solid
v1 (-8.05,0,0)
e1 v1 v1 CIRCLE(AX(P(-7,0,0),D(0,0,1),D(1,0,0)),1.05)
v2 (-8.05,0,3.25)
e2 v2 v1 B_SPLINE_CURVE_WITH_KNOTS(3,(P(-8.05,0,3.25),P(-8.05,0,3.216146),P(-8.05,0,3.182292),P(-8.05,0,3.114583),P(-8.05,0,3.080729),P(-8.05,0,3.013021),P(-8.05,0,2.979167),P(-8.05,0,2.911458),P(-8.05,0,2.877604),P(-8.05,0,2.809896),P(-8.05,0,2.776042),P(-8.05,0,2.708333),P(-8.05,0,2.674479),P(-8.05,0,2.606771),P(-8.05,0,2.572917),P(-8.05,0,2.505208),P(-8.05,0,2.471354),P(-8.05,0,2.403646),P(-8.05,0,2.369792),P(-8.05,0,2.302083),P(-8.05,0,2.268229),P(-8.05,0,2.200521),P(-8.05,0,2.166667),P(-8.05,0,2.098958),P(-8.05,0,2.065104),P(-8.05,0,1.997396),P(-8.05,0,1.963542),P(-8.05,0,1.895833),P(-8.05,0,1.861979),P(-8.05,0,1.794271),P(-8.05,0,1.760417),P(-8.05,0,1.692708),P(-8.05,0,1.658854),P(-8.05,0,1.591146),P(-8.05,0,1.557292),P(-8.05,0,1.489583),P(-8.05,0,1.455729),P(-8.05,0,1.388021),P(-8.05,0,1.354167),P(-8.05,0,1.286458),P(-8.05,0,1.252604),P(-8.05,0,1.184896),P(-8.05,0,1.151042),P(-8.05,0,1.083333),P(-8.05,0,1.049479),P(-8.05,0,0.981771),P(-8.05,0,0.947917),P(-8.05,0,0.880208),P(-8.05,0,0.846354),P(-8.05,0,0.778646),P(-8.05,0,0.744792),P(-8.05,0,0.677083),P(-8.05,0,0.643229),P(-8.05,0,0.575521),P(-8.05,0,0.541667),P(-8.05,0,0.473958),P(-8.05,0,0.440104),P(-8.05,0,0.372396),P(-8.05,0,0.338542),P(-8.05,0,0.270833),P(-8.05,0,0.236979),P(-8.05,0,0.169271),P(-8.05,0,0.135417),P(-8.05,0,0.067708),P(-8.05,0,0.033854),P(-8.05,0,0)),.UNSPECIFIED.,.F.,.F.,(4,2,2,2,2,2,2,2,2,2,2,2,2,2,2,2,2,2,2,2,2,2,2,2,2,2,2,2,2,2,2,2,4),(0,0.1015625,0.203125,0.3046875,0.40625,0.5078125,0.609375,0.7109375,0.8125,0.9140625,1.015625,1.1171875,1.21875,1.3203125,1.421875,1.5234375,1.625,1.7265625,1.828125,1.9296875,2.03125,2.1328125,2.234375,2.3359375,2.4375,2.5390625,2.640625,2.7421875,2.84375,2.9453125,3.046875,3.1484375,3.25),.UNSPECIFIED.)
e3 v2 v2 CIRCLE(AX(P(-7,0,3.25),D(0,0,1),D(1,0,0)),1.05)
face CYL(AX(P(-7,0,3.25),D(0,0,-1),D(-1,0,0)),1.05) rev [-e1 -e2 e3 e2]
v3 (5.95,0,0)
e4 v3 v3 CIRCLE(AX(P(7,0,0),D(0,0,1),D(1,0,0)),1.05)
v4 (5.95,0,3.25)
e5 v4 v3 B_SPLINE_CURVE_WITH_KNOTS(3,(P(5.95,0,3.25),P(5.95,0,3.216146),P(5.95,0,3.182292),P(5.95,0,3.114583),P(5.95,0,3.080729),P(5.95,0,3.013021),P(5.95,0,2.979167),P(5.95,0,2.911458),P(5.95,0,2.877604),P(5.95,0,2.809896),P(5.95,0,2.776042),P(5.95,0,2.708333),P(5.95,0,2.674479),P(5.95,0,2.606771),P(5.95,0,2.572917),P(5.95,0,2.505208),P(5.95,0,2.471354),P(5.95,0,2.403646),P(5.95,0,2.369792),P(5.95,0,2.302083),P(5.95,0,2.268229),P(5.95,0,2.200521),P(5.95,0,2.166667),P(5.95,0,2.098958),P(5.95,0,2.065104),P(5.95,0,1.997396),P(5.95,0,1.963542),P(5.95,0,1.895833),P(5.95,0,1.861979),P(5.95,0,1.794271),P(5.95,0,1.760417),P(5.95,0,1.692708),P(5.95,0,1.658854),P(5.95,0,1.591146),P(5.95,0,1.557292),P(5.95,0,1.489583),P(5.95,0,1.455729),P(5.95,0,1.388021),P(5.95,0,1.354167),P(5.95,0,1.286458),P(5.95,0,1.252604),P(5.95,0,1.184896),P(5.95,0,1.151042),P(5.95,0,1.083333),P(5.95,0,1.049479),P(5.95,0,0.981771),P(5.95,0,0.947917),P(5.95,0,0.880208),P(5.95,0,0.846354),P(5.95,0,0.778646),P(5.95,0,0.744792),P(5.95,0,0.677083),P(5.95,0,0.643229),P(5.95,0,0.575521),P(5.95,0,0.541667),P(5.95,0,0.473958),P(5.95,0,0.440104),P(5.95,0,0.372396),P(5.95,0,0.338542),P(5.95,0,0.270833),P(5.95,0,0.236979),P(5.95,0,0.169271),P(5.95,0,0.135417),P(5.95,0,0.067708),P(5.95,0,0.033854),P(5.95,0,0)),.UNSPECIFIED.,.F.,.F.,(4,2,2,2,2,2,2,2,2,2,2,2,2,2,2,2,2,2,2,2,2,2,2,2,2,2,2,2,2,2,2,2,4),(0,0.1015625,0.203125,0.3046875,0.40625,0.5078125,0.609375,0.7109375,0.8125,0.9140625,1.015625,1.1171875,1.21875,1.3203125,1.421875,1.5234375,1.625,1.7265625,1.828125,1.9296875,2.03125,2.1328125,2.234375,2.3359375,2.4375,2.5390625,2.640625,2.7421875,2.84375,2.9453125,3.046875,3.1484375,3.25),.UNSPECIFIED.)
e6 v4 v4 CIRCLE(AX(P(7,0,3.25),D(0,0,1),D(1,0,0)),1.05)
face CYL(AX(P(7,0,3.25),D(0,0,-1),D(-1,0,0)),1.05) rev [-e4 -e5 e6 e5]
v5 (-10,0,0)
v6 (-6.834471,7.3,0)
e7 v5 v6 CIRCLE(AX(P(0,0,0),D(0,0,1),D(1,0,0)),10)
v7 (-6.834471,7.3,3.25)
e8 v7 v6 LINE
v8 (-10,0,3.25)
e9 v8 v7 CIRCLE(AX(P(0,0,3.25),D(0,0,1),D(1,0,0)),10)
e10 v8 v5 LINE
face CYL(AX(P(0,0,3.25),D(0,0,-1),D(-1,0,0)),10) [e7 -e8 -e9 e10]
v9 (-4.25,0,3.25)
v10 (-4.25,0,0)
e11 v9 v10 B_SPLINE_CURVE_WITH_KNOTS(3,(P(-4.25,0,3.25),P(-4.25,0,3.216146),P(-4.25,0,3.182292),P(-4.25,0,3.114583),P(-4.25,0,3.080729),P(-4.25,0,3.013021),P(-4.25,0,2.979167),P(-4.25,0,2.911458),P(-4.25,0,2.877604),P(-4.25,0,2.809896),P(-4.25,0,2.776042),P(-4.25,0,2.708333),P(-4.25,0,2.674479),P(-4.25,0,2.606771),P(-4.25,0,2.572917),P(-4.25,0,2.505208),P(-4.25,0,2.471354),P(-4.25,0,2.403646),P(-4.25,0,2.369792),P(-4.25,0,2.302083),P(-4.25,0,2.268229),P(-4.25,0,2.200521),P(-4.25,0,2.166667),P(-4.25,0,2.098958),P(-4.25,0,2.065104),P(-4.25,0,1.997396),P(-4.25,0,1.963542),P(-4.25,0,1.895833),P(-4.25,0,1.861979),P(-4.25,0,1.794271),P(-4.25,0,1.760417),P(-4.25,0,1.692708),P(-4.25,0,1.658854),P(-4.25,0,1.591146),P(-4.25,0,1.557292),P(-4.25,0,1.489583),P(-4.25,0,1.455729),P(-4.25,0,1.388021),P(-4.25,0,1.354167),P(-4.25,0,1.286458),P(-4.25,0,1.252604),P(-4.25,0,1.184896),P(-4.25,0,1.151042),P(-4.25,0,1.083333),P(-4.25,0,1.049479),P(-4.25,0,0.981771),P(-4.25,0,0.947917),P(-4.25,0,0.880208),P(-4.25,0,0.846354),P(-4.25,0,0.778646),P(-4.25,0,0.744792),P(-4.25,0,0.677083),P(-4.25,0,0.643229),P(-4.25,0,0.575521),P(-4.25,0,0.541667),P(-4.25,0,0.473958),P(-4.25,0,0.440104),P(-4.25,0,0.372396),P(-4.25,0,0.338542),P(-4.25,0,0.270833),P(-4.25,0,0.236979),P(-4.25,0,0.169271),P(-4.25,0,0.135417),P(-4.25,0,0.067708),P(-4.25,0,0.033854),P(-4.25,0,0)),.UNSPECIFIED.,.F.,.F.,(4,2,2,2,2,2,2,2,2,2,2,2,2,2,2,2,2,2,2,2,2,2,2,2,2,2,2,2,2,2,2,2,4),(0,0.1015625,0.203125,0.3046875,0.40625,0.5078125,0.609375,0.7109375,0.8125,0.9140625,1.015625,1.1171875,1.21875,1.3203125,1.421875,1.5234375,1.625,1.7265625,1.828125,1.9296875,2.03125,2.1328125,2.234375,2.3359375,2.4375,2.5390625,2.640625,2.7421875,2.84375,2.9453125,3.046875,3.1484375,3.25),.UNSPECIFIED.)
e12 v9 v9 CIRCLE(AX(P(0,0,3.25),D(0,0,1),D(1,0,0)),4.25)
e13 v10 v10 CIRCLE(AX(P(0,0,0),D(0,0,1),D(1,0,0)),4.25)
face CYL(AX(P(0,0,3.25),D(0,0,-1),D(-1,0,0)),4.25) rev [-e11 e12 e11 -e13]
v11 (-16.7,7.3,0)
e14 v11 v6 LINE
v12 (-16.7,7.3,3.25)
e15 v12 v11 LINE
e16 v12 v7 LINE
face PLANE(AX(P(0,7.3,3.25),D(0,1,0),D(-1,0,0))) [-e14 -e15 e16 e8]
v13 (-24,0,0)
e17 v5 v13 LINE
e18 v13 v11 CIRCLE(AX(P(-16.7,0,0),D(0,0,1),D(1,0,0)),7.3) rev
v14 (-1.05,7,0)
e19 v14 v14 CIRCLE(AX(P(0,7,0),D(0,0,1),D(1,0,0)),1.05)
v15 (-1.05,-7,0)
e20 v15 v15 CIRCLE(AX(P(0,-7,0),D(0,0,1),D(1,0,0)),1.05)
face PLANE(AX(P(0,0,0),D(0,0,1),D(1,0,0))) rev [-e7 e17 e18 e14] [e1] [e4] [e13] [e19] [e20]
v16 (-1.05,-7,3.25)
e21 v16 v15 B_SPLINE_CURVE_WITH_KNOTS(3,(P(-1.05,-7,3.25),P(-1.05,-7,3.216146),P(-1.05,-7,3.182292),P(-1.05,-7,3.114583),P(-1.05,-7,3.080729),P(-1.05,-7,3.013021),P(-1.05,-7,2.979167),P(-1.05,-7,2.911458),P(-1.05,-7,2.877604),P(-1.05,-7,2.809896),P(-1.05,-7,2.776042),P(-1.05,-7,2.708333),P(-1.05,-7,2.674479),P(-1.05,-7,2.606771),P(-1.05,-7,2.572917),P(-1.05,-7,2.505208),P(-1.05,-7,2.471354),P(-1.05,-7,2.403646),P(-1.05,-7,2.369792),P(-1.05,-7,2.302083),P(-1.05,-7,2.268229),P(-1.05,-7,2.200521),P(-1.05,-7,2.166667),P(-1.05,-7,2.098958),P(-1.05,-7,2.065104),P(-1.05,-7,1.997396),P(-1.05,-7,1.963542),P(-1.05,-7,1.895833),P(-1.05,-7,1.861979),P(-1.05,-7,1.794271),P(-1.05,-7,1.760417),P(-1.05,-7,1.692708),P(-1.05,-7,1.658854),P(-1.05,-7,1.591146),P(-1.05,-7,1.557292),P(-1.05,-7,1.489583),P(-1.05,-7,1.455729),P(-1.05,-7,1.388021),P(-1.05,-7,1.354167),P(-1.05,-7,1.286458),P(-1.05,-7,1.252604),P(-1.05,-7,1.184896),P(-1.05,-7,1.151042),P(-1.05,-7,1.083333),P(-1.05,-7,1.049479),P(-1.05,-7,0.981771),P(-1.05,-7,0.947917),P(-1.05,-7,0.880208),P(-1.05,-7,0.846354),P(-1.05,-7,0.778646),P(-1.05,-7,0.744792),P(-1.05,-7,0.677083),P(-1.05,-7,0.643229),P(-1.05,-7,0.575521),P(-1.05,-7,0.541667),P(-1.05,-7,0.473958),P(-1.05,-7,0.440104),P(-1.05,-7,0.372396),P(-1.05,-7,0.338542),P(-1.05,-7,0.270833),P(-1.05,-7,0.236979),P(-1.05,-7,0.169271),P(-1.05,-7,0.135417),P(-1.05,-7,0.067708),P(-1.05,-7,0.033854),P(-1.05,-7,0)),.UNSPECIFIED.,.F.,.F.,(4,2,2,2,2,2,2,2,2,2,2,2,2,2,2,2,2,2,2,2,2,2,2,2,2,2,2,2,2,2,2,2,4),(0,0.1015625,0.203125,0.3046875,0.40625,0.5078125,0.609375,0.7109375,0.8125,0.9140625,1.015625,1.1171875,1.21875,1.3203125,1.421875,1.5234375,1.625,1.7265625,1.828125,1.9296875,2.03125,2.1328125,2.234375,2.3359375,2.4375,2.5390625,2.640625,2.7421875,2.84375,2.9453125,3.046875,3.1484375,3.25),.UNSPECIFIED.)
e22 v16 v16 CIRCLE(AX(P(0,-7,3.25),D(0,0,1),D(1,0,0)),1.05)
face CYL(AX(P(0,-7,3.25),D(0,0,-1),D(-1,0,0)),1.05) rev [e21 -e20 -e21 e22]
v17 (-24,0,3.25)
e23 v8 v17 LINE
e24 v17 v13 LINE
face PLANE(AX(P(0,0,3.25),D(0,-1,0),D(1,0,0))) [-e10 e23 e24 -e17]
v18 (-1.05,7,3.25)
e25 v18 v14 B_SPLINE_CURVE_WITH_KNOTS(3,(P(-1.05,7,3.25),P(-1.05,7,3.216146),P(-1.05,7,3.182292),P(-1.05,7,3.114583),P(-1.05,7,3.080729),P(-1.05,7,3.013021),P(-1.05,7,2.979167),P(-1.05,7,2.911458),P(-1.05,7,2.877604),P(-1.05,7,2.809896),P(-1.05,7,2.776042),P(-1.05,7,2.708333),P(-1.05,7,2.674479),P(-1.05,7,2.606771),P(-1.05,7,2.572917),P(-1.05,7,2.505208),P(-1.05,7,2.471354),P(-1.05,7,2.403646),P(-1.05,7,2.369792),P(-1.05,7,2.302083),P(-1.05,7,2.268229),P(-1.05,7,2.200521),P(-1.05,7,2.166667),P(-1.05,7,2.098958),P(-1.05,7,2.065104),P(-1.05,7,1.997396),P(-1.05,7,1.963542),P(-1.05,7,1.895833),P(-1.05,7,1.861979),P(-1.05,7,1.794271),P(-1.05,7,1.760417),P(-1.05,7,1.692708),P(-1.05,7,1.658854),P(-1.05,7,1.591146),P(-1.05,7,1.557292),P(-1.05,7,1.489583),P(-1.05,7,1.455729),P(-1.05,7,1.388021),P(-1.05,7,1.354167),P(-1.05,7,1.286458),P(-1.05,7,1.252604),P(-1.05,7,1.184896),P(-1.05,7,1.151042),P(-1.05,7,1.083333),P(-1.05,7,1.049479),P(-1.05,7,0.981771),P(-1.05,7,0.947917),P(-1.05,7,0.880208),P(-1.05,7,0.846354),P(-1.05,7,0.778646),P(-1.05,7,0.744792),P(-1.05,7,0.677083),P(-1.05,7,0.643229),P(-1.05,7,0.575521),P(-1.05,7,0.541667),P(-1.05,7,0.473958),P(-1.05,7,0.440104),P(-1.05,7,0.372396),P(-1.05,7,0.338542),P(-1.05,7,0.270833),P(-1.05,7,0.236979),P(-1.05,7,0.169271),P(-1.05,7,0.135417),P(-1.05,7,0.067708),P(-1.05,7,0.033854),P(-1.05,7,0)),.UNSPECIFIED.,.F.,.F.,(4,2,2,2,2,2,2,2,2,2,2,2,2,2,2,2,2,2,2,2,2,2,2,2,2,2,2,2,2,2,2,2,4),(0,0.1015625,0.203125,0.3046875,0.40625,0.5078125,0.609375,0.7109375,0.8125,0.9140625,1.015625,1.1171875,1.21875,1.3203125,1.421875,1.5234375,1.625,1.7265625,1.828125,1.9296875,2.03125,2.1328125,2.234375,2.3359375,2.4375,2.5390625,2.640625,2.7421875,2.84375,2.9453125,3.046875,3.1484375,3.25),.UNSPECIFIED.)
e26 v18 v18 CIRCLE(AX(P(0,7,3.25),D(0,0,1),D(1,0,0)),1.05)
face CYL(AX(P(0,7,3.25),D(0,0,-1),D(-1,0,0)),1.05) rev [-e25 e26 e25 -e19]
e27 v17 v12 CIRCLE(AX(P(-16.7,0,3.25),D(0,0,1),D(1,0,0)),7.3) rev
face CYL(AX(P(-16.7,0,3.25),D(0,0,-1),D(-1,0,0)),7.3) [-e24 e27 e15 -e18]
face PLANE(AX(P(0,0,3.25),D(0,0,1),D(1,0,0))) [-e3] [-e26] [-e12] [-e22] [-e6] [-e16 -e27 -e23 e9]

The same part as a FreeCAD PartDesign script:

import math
import FreeCAD as App
import Part
import Sketcher

doc = App.newDocument("Part")
body = doc.addObject("PartDesign::Body", "Body")

# Sketch on XY plane
sketch1 = body.newObject("Sketcher::SketchObject", "Sketch")
sketch1.AttachmentSupport = (doc.getObject("XY_Plane"), [""])
sketch1.MapMode = "FlatFace"
sketch1.addGeometry([
    Part.LineSegment(App.Vector(-24, 0, 0), App.Vector(-10, 0, 0)),  # 0
    Part.ArcOfCircle(Part.Circle(App.Vector(0, 0, 0), App.Vector(0, 0, 1), 10), math.radians(180), math.radians(493)),  # 1
    Part.LineSegment(App.Vector(-6.8, 7.3, 0), App.Vector(-16.7, 7.3, 0)),  # 2
    Part.ArcOfCircle(Part.Circle(App.Vector(-16.7, 0, 0), App.Vector(0, 0, 1), 7.3), math.radians(90), math.radians(180)),  # 3
    Part.Circle(App.Vector(0, 7, 0), App.Vector(0, 0, 1), 1.1),  # 4
    Part.Circle(App.Vector(0, -7, 0), App.Vector(0, 0, 1), 1.1),  # 5
    Part.Circle(App.Vector(-7, 0, 0), App.Vector(0, 0, 1), 1.1),  # 6
    Part.Circle(App.Vector(0, 0, 0), App.Vector(0, 0, 1), 4.2),  # 7
    Part.Circle(App.Vector(7, 0, 0), App.Vector(0, 0, 1), 1.1),  # 8
], False)
sketch1.addConstraint([
    Sketcher.Constraint("Coincident", 0, 2, 1, 1),
    Sketcher.Constraint("Coincident", 1, 2, 2, 1),
    Sketcher.Constraint("Tangent", 2, 2, 3, 1),
    Sketcher.Constraint("Coincident", 3, 2, 0, 1),
    Sketcher.Constraint("Horizontal", 0),
    Sketcher.Constraint("Horizontal", 2),
    Sketcher.Constraint("Coincident", 1, 3, -1, 1),
    Sketcher.Constraint("Coincident", 7, 3, -1, 1),
    Sketcher.Constraint("Equal", 4, 5),
    Sketcher.Constraint("Equal", 5, 6),
    Sketcher.Constraint("Equal", 6, 8),
    Sketcher.Constraint("Symmetric", 4, 3, 5, 3, -1, 1),
    Sketcher.Constraint("Symmetric", 6, 3, 8, 3, -1, 1),
    Sketcher.Constraint("PointOnObject", 3, 3, -1),
    Sketcher.Constraint("PointOnObject", 4, 3, -2),
    Sketcher.Constraint("PointOnObject", 6, 3, -1),
    Sketcher.Constraint("PointOnObject", 0, 2, -1),
    Sketcher.Constraint("Radius", 1, 10.0),
    Sketcher.Constraint("Diameter", 4, 2.1),
    Sketcher.Constraint("Diameter", 7, 8.5),
    Sketcher.Constraint("Radius", 3, 7.3),
    Sketcher.Constraint("DistanceX", 0, 1, 0, 2, 14.0),
    Sketcher.Constraint("DistanceY", -1, 1, 4, 3, 7.0),
    Sketcher.Constraint("DistanceX", 6, 3, -1, 1, 7.0),
])
pad1 = body.newObject("PartDesign::Pad", "Pad")
pad1.Profile = sketch1
pad1.Length = 3.25

doc.recompute()
